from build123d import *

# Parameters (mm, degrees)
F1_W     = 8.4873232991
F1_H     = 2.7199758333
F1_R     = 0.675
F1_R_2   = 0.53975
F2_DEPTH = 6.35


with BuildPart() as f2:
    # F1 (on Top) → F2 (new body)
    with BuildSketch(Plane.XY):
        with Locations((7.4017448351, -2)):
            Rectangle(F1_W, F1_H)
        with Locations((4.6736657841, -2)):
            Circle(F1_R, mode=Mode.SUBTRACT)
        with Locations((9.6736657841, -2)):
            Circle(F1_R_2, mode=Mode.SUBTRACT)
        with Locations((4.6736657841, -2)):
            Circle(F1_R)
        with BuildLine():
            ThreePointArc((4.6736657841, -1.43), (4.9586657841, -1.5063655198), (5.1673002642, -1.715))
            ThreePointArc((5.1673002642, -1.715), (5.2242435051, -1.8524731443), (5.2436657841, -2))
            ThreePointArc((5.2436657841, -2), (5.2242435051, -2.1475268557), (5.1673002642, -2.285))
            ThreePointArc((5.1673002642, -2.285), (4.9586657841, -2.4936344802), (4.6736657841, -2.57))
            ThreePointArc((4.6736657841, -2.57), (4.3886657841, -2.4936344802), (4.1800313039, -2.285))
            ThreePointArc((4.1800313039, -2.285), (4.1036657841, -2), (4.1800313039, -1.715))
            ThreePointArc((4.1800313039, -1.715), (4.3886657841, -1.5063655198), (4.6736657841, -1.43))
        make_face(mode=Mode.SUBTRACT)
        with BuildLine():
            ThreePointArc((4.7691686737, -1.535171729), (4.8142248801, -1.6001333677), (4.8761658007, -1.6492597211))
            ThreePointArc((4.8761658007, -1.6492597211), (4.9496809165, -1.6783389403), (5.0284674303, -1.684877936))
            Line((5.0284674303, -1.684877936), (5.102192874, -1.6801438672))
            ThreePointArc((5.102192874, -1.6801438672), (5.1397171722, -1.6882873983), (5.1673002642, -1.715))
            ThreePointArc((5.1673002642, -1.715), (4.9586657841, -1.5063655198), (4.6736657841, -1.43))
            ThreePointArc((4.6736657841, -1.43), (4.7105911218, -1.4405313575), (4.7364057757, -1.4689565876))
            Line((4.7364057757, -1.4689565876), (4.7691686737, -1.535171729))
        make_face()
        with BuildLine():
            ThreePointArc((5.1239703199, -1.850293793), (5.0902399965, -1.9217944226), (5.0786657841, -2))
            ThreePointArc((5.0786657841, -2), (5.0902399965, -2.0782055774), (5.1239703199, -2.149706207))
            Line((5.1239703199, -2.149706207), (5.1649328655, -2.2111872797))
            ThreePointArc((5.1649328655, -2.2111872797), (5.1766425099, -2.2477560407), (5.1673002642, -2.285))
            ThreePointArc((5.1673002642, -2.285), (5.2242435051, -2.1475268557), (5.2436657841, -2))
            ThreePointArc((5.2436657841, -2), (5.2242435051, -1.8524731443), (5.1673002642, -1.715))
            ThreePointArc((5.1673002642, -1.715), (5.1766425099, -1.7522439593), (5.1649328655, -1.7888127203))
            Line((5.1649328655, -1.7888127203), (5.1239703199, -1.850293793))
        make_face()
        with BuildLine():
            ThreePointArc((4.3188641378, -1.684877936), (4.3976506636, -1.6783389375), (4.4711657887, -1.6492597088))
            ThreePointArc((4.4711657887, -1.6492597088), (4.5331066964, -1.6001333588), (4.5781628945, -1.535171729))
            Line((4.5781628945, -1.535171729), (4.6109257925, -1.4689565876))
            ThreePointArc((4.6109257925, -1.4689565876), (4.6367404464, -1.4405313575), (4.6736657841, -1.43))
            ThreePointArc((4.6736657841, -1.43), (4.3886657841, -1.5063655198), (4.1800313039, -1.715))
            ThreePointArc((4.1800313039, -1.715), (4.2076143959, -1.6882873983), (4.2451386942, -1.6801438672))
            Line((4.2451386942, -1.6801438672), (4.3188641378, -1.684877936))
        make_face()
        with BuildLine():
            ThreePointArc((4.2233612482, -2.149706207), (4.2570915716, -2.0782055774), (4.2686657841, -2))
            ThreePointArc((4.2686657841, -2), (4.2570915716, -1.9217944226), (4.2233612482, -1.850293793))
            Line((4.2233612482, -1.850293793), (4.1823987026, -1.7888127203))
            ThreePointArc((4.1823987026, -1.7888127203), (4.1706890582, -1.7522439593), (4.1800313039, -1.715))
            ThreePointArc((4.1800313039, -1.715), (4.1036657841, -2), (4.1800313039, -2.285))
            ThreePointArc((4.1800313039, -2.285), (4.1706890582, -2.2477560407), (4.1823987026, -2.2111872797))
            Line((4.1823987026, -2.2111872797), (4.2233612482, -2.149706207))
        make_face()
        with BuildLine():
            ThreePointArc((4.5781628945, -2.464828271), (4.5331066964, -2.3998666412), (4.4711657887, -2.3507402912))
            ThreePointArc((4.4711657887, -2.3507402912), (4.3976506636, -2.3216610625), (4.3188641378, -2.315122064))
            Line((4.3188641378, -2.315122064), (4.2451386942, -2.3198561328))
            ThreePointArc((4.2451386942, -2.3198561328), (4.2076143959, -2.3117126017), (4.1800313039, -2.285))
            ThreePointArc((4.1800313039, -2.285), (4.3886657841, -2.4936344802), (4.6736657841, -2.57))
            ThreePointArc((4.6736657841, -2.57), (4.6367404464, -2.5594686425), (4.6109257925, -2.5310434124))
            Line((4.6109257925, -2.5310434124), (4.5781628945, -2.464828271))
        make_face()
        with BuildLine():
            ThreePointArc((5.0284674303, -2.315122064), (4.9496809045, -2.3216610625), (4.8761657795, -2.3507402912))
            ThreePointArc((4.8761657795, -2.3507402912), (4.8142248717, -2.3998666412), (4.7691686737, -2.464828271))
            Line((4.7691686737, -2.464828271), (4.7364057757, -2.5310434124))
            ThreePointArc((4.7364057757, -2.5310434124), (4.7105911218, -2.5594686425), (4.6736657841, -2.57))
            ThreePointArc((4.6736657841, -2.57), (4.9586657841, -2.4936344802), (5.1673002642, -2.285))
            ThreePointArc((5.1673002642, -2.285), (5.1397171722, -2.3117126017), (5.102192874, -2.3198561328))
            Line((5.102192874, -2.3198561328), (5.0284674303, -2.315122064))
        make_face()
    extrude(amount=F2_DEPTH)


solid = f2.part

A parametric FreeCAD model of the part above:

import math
import FreeCAD as App
import Part
import Sketcher
from FreeCAD import Vector
Q = App.Units.Quantity

doc = App.newDocument("Part")
params = doc.addObject("Spreadsheet::Sheet", "Params")
for row, (alias, value) in enumerate([
    ("pad1_length", "0.25 in"),
], start=1):
    params.set(f"A{row}", alias)
    params.set(f"B{row}", "=" + value)
    params.setAlias(f"B{row}", alias)

body = doc.addObject("PartDesign::Body", "Body")

# Sketch on XY plane
sketch1 = doc.addObject("Sketcher::SketchObject", "Sketch")
body.addObject(sketch1)
sketch1.AttachmentSupport = (doc.XY_Plane, [""])
sketch1.MapMode = "FlatFace"
sketch1.addGeometry([
    Part.LineSegment(Vector(3.158083, -0.640012, 0), Vector(3.158083, -3.359988, 0)),  # 0
    Part.LineSegment(Vector(3.158083, -3.359988, 0), Vector(11.645406, -3.359988, 0)),  # 1
    Part.LineSegment(Vector(11.645406, -3.359988, 0), Vector(11.645406, -0.640012, 0)),  # 2
    Part.LineSegment(Vector(11.645406, -0.640012, 0), Vector(3.158083, -0.640012, 0)),  # 3
    Part.ArcOfCircle(Part.Circle(Vector(4.673666, -1.5, 0), Vector(0, 0, 1), 0.07), math.radians(26.325959), math.radians(90)),  # 4
    Part.LineSegment(Vector(4.736406, -1.468957, 0), Vector(4.769169, -1.535172, 0)),  # 5
    Part.ArcOfCircle(Part.Circle(Vector(5.011166, -1.415433, 0), Vector(0, 0, 1), 0.27), math.radians(-153.674041), math.radians(-119.999996)),  # 6
    Part.ArcOfCircle(Part.Circle(Vector(5.011166, -1.415433, 0), Vector(0, 0, 1), 0.27), math.radians(-119.999996), math.radians(-86.325959)),  # 7
    Part.LineSegment(Vector(5.028467, -1.684878, 0), Vector(5.102193, -1.680144, 0)),  # 8
    Part.ArcOfCircle(Part.Circle(Vector(5.106678, -1.75, 0), Vector(0, 0, 1), 0.07), math.radians(30), math.radians(93.674041)),  # 9
    Part.ArcOfCircle(Part.Circle(Vector(5.106678, -1.75, 0), Vector(0, 0, 1), 0.07), math.radians(-33.674041), math.radians(30)),  # 10
    Part.LineSegment(Vector(5.164933, -1.788813, 0), Vector(5.12397, -1.850294, 0)),  # 11
    Part.ArcOfCircle(Part.Circle(Vector(5.348666, -2, 0), Vector(0, 0, 1), 0.27), math.radians(146.325959), math.radians(180)),  # 12
    Part.ArcOfCircle(Part.Circle(Vector(5.348666, -2, 0), Vector(0, 0, 1), 0.27), math.radians(180), math.radians(213.674041)),  # 13
    Part.LineSegment(Vector(5.12397, -2.149706, 0), Vector(5.164933, -2.211187, 0)),  # 14
    Part.ArcOfCircle(Part.Circle(Vector(5.106678, -2.25, 0), Vector(0, 0, 1), 0.07), math.radians(-30), math.radians(33.674041)),  # 15
    Part.ArcOfCircle(Part.Circle(Vector(5.106678, -2.25, 0), Vector(0, 0, 1), 0.07), math.radians(-93.674041), math.radians(-30)),  # 16
    Part.LineSegment(Vector(5.102193, -2.319856, 0), Vector(5.028467, -2.315122, 0)),  # 17
    Part.ArcOfCircle(Part.Circle(Vector(5.011166, -2.584567, 0), Vector(0, 0, 1), 0.27), math.radians(86.325959), math.radians(120.000001)),  # 18
    Part.ArcOfCircle(Part.Circle(Vector(5.011166, -2.584567, 0), Vector(0, 0, 1), 0.27), math.radians(120.000001), math.radians(153.674041)),  # 19
    Part.LineSegment(Vector(4.769169, -2.464828, 0), Vector(4.736406, -2.531043, 0)),  # 20
    Part.ArcOfCircle(Part.Circle(Vector(4.673666, -2.5, 0), Vector(0, 0, 1), 0.07), math.radians(-90), math.radians(-26.325959)),  # 21
    Part.ArcOfCircle(Part.Circle(Vector(4.673666, -2.5, 0), Vector(0, 0, 1), 0.07), math.radians(-153.674041), math.radians(-90)),  # 22
    Part.LineSegment(Vector(4.610926, -2.531043, 0), Vector(4.578163, -2.464828, 0)),  # 23
    Part.ArcOfCircle(Part.Circle(Vector(4.336166, -2.584567, 0), Vector(0, 0, 1), 0.27), math.radians(26.325959), math.radians(59.999999)),  # 24
    Part.ArcOfCircle(Part.Circle(Vector(4.336166, -2.584567, 0), Vector(0, 0, 1), 0.27), math.radians(59.999999), math.radians(93.674041)),  # 25
    Part.LineSegment(Vector(4.318864, -2.315122, 0), Vector(4.245139, -2.319856, 0)),  # 26
    Part.ArcOfCircle(Part.Circle(Vector(4.240653, -2.25, 0), Vector(0, 0, 1), 0.07), math.radians(-150), math.radians(-86.325959)),  # 27
    Part.ArcOfCircle(Part.Circle(Vector(4.240653, -2.25, 0), Vector(0, 0, 1), 0.07), math.radians(146.325959), math.radians(210)),  # 28
    Part.LineSegment(Vector(4.182399, -2.211187, 0), Vector(4.223361, -2.149706, 0)),  # 29
    Part.ArcOfCircle(Part.Circle(Vector(3.998666, -2, 0), Vector(0, 0, 1), 0.27), math.radians(-33.674041), math.radians(0)),  # 30
    Part.ArcOfCircle(Part.Circle(Vector(3.998666, -2, 0), Vector(0, 0, 1), 0.27), math.radians(0), math.radians(33.674041)),  # 31
    Part.LineSegment(Vector(4.223361, -1.850294, 0), Vector(4.182399, -1.788813, 0)),  # 32
    Part.ArcOfCircle(Part.Circle(Vector(4.240653, -1.75, 0), Vector(0, 0, 1), 0.07), math.radians(150), math.radians(213.674041)),  # 33
    Part.ArcOfCircle(Part.Circle(Vector(4.240653, -1.75, 0), Vector(0, 0, 1), 0.07), math.radians(86.325959), math.radians(150)),  # 34
    Part.LineSegment(Vector(4.245139, -1.680144, 0), Vector(4.318864, -1.684878, 0)),  # 35
    Part.ArcOfCircle(Part.Circle(Vector(4.336166, -1.415433, 0), Vector(0, 0, 1), 0.27), math.radians(-93.674041), math.radians(-59.999999)),  # 36
    Part.ArcOfCircle(Part.Circle(Vector(4.336166, -1.415433, 0), Vector(0, 0, 1), 0.27), math.radians(-59.999999), math.radians(-26.325959)),  # 37
    Part.LineSegment(Vector(4.578163, -1.535172, 0), Vector(4.610926, -1.468957, 0)),  # 38
    Part.ArcOfCircle(Part.Circle(Vector(4.673666, -1.5, 0), Vector(0, 0, 1), 0.07), math.radians(90), math.radians(153.674041)),  # 39
    Part.Circle(Vector(9.673666, -2, 0), Vector(0, 0, 1), 0.53975),  # 40
], False)
sketch1.addConstraint([
    Sketcher.Constraint("Coincident", 0, 2, 1, 1),
    Sketcher.Constraint("Coincident", 1, 2, 2, 1),
    Sketcher.Constraint("Coincident", 2, 2, 3, 1),
    Sketcher.Constraint("Coincident", 3, 2, 0, 1),
    Sketcher.Constraint("Tangent", 4, 1, 5, 1),
    Sketcher.Constraint("Tangent", 5, 2, 6, 1),
    Sketcher.Constraint("Tangent", 6, 2, 7, 1),
    Sketcher.Constraint("Tangent", 7, 2, 8, 1),
    Sketcher.Constraint("Tangent", 8, 2, 9, 2),
    Sketcher.Constraint("Tangent", 9, 1, 10, 2),
    Sketcher.Constraint("Tangent", 10, 1, 11, 1),
    Sketcher.Constraint("Tangent", 11, 2, 12, 1),
    Sketcher.Constraint("Tangent", 12, 2, 13, 1),
    Sketcher.Constraint("Tangent", 13, 2, 14, 1),
    Sketcher.Constraint("Tangent", 14, 2, 15, 2),
    Sketcher.Constraint("Tangent", 15, 1, 16, 2),
    Sketcher.Constraint("Tangent", 16, 1, 17, 1),
    Sketcher.Constraint("Tangent", 17, 2, 18, 1),
    Sketcher.Constraint("Tangent", 18, 2, 19, 1),
    Sketcher.Constraint("Tangent", 19, 2, 20, 1),
    Sketcher.Constraint("Tangent", 20, 2, 21, 2),
    Sketcher.Constraint("Tangent", 21, 1, 22, 2),
    Sketcher.Constraint("Tangent", 22, 1, 23, 1),
    Sketcher.Constraint("Tangent", 23, 2, 24, 1),
    Sketcher.Constraint("Tangent", 24, 2, 25, 1),
    Sketcher.Constraint("Tangent", 25, 2, 26, 1),
    Sketcher.Constraint("Tangent", 26, 2, 27, 2),
    Sketcher.Constraint("Tangent", 27, 1, 28, 2),
    Sketcher.Constraint("Tangent", 28, 1, 29, 1),
    Sketcher.Constraint("Tangent", 29, 2, 30, 1),
    Sketcher.Constraint("Tangent", 30, 2, 31, 1),
    Sketcher.Constraint("Tangent", 31, 2, 32, 1),
    Sketcher.Constraint("Tangent", 32, 2, 33, 2),
    Sketcher.Constraint("Tangent", 33, 1, 34, 2),
    Sketcher.Constraint("Tangent", 34, 1, 35, 1),
    Sketcher.Constraint("Tangent", 35, 2, 36, 1),
    Sketcher.Constraint("Tangent", 36, 2, 37, 1),
    Sketcher.Constraint("Tangent", 37, 2, 38, 1),
    Sketcher.Constraint("Tangent", 38, 2, 39, 2),
    Sketcher.Constraint("Tangent", 39, 1, 4, 2),
    Sketcher.Constraint("Vertical", 0),
    Sketcher.Constraint("Horizontal", 1),
    Sketcher.Constraint("Vertical", 2),
    Sketcher.Constraint("Horizontal", 3),
    Sketcher.Constraint("Equal", 6, 7),
    Sketcher.Constraint("Equal", 4, 9),
    Sketcher.Constraint("Equal", 9, 10),
    Sketcher.Constraint("Equal", 7, 12),
    Sketcher.Constraint("Equal", 12, 13),
    Sketcher.Constraint("Equal", 10, 15),
    Sketcher.Constraint("Equal", 15, 16),
    Sketcher.Constraint("Equal", 13, 18),
    Sketcher.Constraint("Equal", 18, 19),
    Sketcher.Constraint("Equal", 16, 21),
    Sketcher.Constraint("Equal", 21, 22),
    Sketcher.Constraint("Equal", 19, 24),
    Sketcher.Constraint("Equal", 24, 25),
    Sketcher.Constraint("Equal", 22, 27),
    Sketcher.Constraint("Equal", 27, 28),
    Sketcher.Constraint("Equal", 25, 30),
    Sketcher.Constraint("Equal", 30, 31),
    Sketcher.Constraint("Equal", 28, 33),
    Sketcher.Constraint("Equal", 33, 34),
    Sketcher.Constraint("Equal", 31, 36),
    Sketcher.Constraint("Equal", 36, 37),
    Sketcher.Constraint("Equal", 34, 39),
    Sketcher.Constraint("Parallel", 5, 23),
    Sketcher.Constraint("Parallel", 8, 26),
    Sketcher.Constraint("Parallel", 11, 29),
    Sketcher.Constraint("Parallel", 14, 32),
    Sketcher.Constraint("Parallel", 17, 35),
    Sketcher.Constraint("Parallel", 20, 38),
    Sketcher.Constraint("Horizontal", 19, 3, 24, 3),
    Sketcher.Constraint("Horizontal", 16, 3, 27, 3),
    Sketcher.Constraint("Horizontal", 13, 3, 30, 3),
    Sketcher.Constraint("Horizontal", 10, 3, 33, 3),
    Sketcher.Constraint("Horizontal", 7, 3, 36, 3),
    Sketcher.Constraint("Horizontal", 31, 3, 40, 3),
    Sketcher.Constraint("Horizontal", 40, 3, 12, 2),
    Sketcher.Constraint("Horizontal", 20, 2, 22, 1),
    Sketcher.Constraint("Horizontal", 18, 2, 24, 2),
    Sketcher.Constraint("Horizontal", 17, 2, 25, 2),
    Sketcher.Constraint("Horizontal", 15, 1, 27, 1),
    Sketcher.Constraint("Horizontal", 14, 2, 28, 1),
    Sketcher.Constraint("Horizontal", 12, 2, 30, 2),
    Sketcher.Constraint("Horizontal", 9, 1, 33, 1),
    Sketcher.Constraint("Horizontal", 6, 2, 36, 2),
    Sketcher.Constraint("Vertical", 10, 3, 15, 3),
    Sketcher.Constraint("Vertical", 7, 3, 18, 3),
    Sketcher.Constraint("Vertical", 9, 1, 15, 1),
    Sketcher.Constraint("Vertical", 6, 2, 18, 2),
    Sketcher.Constraint("Vertical", 39, 3, 21, 1),
    Sketcher.Constraint("Vertical", 21, 1, 39, 1),
    Sketcher.Constraint("Equal", 5, 8),
    Sketcher.Constraint("Equal", 8, 11),
    Sketcher.Constraint("Diameter", 40, Q("0.0425 in")),
    Sketcher.Constraint("Radius", 4, 0.07),
    Sketcher.Constraint("Radius", 6, 0.27),
    Sketcher.Constraint("DistanceY", 4, 3, -1, 1, 1.5),
    Sketcher.Constraint("DistanceY", 9, 3, -1, 1, 1.75),
    Sketcher.Constraint("DistanceY", 12, 3, -1, 1, 2.0),
    Sketcher.Constraint("DistanceX", -1, 1, 9, 1, 5.1673),
    Sketcher.Constraint("DistanceY", 9, 1, -1, 1, 1.715),
    Sketcher.Constraint("DistanceX", -1, 1, 28, 1, 4.182399),
    Sketcher.Constraint("DistanceX", 1, 1, 1, 2, 8.487323),
    Sketcher.Constraint("DistanceY", 0, 2, 0, 1, 2.719976),
    Sketcher.Constraint("DistanceX", -1, 1, 5, 2, 4.769169),
    Sketcher.Constraint("DistanceY", 6, 2, -1, 1, 1.64926),
    Sketcher.Constraint("DistanceX", -1, 1, 40, 3, 9.673666),
    Sketcher.Constraint("DistanceX", -1, 1, 0, 2, 3.158083),
    Sketcher.Constraint("DistanceY", 0, 2, -1, 1, 3.359988),
])
pad1 = doc.addObject("PartDesign::Pad", "Pad")
body.addObject(pad1)
pad1.Profile = sketch1
pad1.setExpression("Length", "Params.pad1_length")

doc.recompute()
